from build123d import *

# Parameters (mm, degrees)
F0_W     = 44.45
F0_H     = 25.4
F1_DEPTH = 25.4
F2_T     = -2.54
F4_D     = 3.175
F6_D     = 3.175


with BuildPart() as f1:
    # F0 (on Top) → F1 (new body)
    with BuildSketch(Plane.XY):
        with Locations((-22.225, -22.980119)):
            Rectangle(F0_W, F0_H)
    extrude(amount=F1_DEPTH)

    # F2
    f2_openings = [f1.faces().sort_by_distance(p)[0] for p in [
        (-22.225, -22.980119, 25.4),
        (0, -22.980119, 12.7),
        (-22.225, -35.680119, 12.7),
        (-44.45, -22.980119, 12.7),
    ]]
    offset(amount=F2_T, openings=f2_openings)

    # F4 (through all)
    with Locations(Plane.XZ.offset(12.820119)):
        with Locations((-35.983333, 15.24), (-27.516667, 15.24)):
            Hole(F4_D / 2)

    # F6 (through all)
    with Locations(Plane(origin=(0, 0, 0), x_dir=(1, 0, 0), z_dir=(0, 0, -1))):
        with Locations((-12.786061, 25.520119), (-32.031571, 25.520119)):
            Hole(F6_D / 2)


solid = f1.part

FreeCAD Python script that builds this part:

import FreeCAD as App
import Part
import Sketcher
from FreeCAD import Vector
Q = App.Units.Quantity


def faces_at(feature, points):
    """Names of the faces that lie closest to the given points."""
    faces = feature.Shape.Faces
    near = lambda p: min(range(len(faces)), key=lambda i: faces[i].distToShape(Part.Vertex(*p))[0])
    return sorted({f"Face{near(p) + 1}" for p in points})

doc = App.newDocument("Part")
body = doc.addObject("PartDesign::Body", "Body")

# Sketch on XY plane
sketch1 = doc.addObject("Sketcher::SketchObject", "Sketch")
body.addObject(sketch1)
sketch1.AttachmentSupport = (doc.XY_Plane, [""])
sketch1.MapMode = "FlatFace"
sketch1.addGeometry(Part.LineSegment(Vector(-44, -10, 0), Vector(-44, -36, 0)), False)
sketch1.addGeometry(Part.LineSegment(Vector(-44, -36, 0), Vector(0, -36, 0)), False)
sketch1.addGeometry(Part.LineSegment(Vector(0, -36, 0), Vector(0, -10, 0)), False)
sketch1.addGeometry(Part.LineSegment(Vector(0, -10, 0), Vector(-44, -10, 0)), False)
sketch1.addConstraint(Sketcher.Constraint("Coincident", 0, 2, 1, 1))
sketch1.addConstraint(Sketcher.Constraint("Coincident", 1, 2, 2, 1))
sketch1.addConstraint(Sketcher.Constraint("Coincident", 2, 2, 3, 1))
sketch1.addConstraint(Sketcher.Constraint("Coincident", 3, 2, 0, 1))
sketch1.addConstraint(Sketcher.Constraint("Vertical", 0))
sketch1.addConstraint(Sketcher.Constraint("Horizontal", 1))
sketch1.addConstraint(Sketcher.Constraint("Vertical", 2))
sketch1.addConstraint(Sketcher.Constraint("Horizontal", 3))
sketch1.addConstraint(Sketcher.Constraint("PointOnObject", 1, 2, -2))
sketch1.addConstraint(Sketcher.Constraint("DistanceY", 0, 2, 0, 1, Q("1 in")))
sketch1.addConstraint(Sketcher.Constraint("DistanceX", 1, 1, 1, 2, Q("1.75 in")))
sketch1.addConstraint(Sketcher.Constraint("DistanceY", 0, 2, -1, 1, Q("35.680119 mm")))
pad1 = doc.addObject("PartDesign::Pad", "Pad")
body.addObject(pad1)
pad1.Profile = sketch1
pad1.Length = Q("1 in")
doc.recompute()

thickness = doc.addObject("PartDesign::Thickness", "Thickness")
body.addObject(thickness)
thickness.Base = (pad1, faces_at(pad1, [
    (-22.225, -22.98, 25.4),
    (0, -22.98, 12.7),
    (-22.225, -35.68, 12.7),
    (-44.45, -22.98, 12.7),
]))
thickness.Value = Q("0.1 in")
thickness.Reversed = True
thickness.Join = "Arc"

# Sketch on XZ plane
sketch2 = doc.addObject("Sketcher::SketchObject", "Sketch001")
body.addObject(sketch2)
sketch2.AttachmentSupport = (doc.XZ_Plane, [""])
sketch2.MapMode = "FlatFace"
sketch2.AttachmentOffset = App.Placement(Vector(0, 0, 12.820119), App.Rotation())
sketch2.addGeometry(Part.Circle(Vector(-36, 15.2, 0), Vector(0, 0, 1), 1.6), False)
sketch2.addGeometry(Part.Circle(Vector(-27.5, 15.2, 0), Vector(0, 0, 1), 1.6), False)
sketch2.addConstraint(Sketcher.Constraint("Equal", 0, 1))
sketch2.addConstraint(Sketcher.Constraint("Horizontal", 0, 3, 1, 3))
sketch2.addConstraint(Sketcher.Constraint("Diameter", 0, Q("0.125 in")))
sketch2.addConstraint(Sketcher.Constraint("DistanceY", -1, 1, 0, 3, Q("0.6 in")))
sketch2.addConstraint(Sketcher.Constraint("DistanceX", 0, 3, -1, 1, Q("35.983333 mm")))
sketch2.addConstraint(Sketcher.Constraint("DistanceX", 1, 3, -1, 1, Q("27.516667 mm")))
doc.recompute()
hole = doc.addObject("PartDesign::Hole", "Hole")
body.addObject(hole)
hole.Profile = sketch2
hole.ThreadType = "None"
hole.Diameter = Q("0.125 in")
hole.DepthType = "ThroughAll"

# Sketch on XY plane
sketch3 = doc.addObject("Sketcher::SketchObject", "Sketch002")
body.addObject(sketch3)
sketch3.AttachmentSupport = (doc.XY_Plane, [""])
sketch3.MapMode = "FlatFace"
sketch3.addGeometry(Part.Circle(Vector(-12.8, -25.5, 0), Vector(0, 0, 1), 1.6), False)
sketch3.addGeometry(Part.Circle(Vector(-32, -25.5, 0), Vector(0, 0, 1), 1.6), False)
sketch3.addConstraint(Sketcher.Constraint("Equal", 0, 1))
sketch3.addConstraint(Sketcher.Constraint("Horizontal", 0, 3, 1, 3))
sketch3.addConstraint(Sketcher.Constraint("Diameter", 0, Q("0.125 in")))
sketch3.addConstraint(Sketcher.Constraint("DistanceX", 0, 3, -1, 1, Q("12.786061 mm")))
sketch3.addConstraint(Sketcher.Constraint("DistanceY", 0, 3, -1, 1, Q("25.520119 mm")))
sketch3.addConstraint(Sketcher.Constraint("DistanceX", 1, 3, -1, 1, Q("32.031571 mm")))
doc.recompute()
hole2 = doc.addObject("PartDesign::Hole", "Hole001")
body.addObject(hole2)
hole2.Profile = sketch3
hole2.ThreadType = "None"
hole2.Diameter = Q("0.125 in")
hole2.DepthType = "ThroughAll"
hole2.Reversed = True

doc.recompute()
